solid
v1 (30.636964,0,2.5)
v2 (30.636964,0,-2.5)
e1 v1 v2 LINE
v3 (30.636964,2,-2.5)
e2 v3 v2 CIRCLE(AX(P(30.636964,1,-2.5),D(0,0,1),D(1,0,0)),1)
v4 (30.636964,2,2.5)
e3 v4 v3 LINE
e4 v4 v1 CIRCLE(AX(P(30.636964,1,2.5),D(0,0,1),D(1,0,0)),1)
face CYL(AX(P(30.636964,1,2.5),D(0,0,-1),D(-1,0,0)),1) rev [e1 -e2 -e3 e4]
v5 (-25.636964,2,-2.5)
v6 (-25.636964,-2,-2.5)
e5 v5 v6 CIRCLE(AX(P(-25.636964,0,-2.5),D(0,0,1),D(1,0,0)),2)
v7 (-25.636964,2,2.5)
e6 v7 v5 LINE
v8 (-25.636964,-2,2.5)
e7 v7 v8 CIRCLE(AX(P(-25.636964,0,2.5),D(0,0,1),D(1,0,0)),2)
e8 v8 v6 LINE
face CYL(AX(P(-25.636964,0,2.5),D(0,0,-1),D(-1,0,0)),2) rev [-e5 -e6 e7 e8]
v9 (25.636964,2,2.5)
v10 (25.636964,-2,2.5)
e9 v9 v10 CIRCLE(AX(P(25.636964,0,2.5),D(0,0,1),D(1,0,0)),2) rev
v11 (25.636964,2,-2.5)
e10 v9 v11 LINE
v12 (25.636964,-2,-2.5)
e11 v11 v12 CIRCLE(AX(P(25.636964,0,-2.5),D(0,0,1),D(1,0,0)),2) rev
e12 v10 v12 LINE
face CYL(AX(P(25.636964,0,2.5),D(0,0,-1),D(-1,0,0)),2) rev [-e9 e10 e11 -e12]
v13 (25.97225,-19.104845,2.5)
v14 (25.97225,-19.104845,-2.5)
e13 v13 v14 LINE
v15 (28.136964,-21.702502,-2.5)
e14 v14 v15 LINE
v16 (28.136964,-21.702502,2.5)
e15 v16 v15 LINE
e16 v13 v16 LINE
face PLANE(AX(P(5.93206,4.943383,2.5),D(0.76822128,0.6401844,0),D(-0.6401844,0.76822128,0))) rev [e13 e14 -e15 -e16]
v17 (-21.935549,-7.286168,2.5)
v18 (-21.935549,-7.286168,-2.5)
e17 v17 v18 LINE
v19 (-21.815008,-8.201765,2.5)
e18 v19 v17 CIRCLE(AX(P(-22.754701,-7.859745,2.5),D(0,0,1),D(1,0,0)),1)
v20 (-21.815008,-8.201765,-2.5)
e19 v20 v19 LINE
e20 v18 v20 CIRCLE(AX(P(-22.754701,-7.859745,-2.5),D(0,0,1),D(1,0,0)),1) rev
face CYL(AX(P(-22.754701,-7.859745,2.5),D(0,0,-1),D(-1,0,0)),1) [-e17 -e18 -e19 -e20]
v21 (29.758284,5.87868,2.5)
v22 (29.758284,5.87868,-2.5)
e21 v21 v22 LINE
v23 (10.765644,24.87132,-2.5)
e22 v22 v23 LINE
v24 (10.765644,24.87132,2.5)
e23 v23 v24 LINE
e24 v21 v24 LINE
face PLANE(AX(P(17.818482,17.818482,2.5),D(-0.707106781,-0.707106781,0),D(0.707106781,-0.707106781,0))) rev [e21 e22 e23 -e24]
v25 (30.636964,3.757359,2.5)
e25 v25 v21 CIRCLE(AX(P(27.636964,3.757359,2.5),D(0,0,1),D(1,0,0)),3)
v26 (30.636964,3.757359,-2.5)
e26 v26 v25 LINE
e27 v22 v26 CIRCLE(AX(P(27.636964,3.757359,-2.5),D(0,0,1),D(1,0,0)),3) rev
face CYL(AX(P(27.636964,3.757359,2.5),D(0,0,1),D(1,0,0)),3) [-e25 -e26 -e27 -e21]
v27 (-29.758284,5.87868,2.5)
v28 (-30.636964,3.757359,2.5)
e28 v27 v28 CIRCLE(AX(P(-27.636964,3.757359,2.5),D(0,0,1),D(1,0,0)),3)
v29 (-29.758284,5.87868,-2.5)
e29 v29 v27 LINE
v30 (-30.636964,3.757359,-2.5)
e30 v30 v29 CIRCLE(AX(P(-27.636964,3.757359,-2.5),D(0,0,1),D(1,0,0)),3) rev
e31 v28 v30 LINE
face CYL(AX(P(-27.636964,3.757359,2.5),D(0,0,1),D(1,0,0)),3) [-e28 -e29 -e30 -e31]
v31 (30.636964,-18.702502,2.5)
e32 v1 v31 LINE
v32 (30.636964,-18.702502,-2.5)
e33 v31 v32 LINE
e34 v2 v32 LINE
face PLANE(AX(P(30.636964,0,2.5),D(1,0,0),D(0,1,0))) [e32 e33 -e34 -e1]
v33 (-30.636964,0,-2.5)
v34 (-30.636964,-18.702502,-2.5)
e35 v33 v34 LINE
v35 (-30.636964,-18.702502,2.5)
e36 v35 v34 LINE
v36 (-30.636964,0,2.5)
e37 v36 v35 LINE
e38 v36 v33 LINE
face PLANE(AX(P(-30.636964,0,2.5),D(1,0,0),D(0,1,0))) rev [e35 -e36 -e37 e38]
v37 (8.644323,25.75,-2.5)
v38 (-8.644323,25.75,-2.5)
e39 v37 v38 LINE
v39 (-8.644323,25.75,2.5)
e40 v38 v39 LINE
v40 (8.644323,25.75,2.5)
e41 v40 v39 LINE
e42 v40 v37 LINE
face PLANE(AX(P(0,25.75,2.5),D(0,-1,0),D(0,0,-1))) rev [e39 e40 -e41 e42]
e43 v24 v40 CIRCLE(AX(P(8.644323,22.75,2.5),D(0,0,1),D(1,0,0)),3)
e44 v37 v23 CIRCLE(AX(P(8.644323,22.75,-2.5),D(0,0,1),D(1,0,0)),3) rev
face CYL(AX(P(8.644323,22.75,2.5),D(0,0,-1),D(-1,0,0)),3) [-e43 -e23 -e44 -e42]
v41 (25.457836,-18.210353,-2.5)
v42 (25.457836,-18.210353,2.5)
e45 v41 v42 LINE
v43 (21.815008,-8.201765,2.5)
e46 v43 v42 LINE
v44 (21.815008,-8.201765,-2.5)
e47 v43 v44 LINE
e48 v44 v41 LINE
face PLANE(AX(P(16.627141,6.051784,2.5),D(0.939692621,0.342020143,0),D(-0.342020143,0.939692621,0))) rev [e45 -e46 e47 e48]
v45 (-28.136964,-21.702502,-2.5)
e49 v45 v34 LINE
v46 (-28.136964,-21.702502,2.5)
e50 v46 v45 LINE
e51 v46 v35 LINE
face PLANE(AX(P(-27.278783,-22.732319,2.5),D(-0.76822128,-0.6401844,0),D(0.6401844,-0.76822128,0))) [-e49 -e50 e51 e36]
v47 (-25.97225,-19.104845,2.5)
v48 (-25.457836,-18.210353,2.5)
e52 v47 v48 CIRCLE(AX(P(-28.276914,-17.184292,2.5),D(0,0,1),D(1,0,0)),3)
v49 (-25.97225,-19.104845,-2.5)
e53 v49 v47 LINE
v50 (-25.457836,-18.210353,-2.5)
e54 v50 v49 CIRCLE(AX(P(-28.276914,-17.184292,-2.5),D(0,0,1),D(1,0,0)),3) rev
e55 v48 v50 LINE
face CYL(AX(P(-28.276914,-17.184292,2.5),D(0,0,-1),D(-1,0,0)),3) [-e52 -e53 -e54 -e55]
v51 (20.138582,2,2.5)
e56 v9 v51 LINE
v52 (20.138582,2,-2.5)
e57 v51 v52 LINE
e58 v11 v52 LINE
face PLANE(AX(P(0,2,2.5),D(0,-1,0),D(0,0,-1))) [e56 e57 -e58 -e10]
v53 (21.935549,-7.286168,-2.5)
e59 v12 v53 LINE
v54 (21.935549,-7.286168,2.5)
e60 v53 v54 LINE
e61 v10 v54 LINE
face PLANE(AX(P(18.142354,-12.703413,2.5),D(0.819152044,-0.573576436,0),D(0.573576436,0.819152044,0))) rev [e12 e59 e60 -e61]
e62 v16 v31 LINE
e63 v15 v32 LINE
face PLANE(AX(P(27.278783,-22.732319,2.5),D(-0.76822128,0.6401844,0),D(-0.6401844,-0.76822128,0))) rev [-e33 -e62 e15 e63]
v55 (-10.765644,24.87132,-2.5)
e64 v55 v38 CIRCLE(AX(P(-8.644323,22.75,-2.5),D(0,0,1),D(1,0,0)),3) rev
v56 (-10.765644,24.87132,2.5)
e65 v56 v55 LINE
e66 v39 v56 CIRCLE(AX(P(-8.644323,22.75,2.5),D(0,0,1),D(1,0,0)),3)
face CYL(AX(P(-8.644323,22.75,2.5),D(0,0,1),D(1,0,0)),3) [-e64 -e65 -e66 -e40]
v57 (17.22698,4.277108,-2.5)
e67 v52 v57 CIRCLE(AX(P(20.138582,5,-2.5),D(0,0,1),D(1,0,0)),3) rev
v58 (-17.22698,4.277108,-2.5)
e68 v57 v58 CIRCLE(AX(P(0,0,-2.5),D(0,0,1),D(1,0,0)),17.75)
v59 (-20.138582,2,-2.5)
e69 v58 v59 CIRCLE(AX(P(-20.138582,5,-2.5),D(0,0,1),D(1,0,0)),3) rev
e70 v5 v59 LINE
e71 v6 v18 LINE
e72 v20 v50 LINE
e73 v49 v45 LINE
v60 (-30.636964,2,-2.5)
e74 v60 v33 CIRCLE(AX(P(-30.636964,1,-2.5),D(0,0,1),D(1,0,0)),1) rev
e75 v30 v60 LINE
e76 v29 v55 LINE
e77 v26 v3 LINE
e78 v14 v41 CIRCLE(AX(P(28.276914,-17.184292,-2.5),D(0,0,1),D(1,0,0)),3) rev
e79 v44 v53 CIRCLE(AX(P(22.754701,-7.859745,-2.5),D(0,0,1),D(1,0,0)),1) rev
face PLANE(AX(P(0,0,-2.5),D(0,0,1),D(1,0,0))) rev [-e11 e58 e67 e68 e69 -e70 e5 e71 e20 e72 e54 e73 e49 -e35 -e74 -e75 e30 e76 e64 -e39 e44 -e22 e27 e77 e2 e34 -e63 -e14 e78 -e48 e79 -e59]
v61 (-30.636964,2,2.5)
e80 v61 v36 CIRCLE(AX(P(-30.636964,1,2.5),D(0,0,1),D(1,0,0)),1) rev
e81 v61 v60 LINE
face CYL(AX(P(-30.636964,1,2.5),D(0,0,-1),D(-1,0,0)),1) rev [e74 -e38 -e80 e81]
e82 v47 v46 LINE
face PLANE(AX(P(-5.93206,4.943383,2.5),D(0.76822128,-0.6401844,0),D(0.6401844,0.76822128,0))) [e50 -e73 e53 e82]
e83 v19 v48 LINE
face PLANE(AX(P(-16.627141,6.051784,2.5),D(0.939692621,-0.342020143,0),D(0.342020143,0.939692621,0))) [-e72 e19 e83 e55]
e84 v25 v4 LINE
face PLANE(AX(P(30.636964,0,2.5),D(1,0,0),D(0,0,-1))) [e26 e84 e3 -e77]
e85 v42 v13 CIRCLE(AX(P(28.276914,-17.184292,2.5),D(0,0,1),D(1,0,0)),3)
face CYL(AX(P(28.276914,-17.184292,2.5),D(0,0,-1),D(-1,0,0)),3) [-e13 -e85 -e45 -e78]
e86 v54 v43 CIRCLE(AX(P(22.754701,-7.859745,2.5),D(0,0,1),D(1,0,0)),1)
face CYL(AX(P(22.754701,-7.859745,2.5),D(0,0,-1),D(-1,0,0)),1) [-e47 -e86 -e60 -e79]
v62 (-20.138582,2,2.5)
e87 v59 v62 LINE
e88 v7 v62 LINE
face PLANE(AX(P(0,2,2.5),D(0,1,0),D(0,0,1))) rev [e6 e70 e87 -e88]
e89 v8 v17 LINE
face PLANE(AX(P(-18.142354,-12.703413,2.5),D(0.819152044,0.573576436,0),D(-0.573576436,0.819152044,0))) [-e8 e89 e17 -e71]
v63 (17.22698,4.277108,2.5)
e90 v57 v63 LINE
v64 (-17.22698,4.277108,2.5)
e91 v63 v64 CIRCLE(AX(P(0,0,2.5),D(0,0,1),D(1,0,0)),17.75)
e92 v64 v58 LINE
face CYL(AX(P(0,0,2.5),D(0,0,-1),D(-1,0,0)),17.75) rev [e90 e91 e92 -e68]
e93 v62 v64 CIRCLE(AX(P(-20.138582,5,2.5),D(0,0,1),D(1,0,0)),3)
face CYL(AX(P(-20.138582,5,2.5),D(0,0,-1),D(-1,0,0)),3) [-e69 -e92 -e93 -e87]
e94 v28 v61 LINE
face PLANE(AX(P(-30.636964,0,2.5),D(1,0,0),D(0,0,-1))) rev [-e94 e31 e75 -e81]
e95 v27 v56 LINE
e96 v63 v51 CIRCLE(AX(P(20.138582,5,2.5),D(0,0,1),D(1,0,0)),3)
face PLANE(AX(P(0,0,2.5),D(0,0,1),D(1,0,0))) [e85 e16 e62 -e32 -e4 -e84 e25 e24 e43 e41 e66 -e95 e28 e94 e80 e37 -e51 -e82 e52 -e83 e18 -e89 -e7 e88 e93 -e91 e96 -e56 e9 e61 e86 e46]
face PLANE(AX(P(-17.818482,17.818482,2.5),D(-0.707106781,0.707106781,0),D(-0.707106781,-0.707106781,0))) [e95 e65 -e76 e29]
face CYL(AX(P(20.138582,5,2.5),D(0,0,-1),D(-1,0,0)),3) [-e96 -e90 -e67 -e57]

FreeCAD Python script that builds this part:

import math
import FreeCAD as App
import Part
import Sketcher
from FreeCAD import Vector
Q = App.Units.Quantity


def edges_at(feature, points):
    """Names of the edges that pass closest to the given points."""
    edges = feature.Shape.Edges
    near = lambda p: min(range(len(edges)), key=lambda i: edges[i].distToShape(Part.Vertex(*p))[0])
    return sorted({f"Edge{near(p) + 1}" for p in points})

doc = App.newDocument("Part")
params = doc.addObject("Spreadsheet::Sheet", "Params")
for row, (alias, value) in enumerate([
    ("sketch1_radius", "2 mm"),
    ("sketch1_width", "8 mm"),
    ("sketch1_height", "3 mm"),
    ("sketch1_radius2", "17.75 mm"),
    ("pad1_length", "5 mm"),
    ("fillet_radius", "3 mm"),
    ("fillet2_radius", "1 mm"),
], start=1):
    params.set(f"A{row}", alias)
    params.set(f"B{row}", "=" + value)
    params.setAlias(f"B{row}", alias)

body = doc.addObject("PartDesign::Body", "Body")

sketch1 = doc.addObject("Sketcher::SketchObject", "Sketch")
body.addObject(sketch1)
sketch1.AttachmentSupport = (doc.XY_Plane, [""])
sketch1.MapMode = "FlatFace"
sketch1.addGeometry(Part.LineSegment(Vector(17.6, 2, 0), Vector(25.6, 2, 0)), False)
sketch1.addGeometry(Part.ArcOfCircle(Part.Circle(Vector(25.6, 0, 0), Vector(0, 0, 1), 2), math.radians(-90), math.radians(90)), False)
sketch1.addGeometry(Part.LineSegment(Vector(25.6, -2, 0), Vector(21.6, -7.7, 0)), False)
sketch1.addGeometry(Part.LineSegment(Vector(21.6, -7.7, 0), Vector(25.6, -18.7, 0)), False)
sketch1.addGeometry(Part.LineSegment(Vector(25.6, -18.7, 0), Vector(28.1, -21.7, 0)), False)
sketch1.addGeometry(Part.LineSegment(Vector(28.1, -21.7, 0), Vector(30.6, -18.7, 0)), False)
sketch1.addGeometry(Part.LineSegment(Vector(30.6, -18.7, 0), Vector(30.6, 0, 0)), False)
sketch1.addGeometry(Part.ArcOfCircle(Part.Circle(Vector(30.6, 1, 0), Vector(0, 0, 1), 1), math.radians(90), math.radians(270)), False)
sketch1.addGeometry(Part.LineSegment(Vector(30.6, 2, 0), Vector(30.6, 5, 0)), False)
sketch1.addGeometry(Part.LineSegment(Vector(30.6, 5, 0), Vector(9.9, 25.8, 0)), False)
sketch1.addGeometry(Part.LineSegment(Vector(9.9, 25.8, 0), Vector(-9.9, 25.8, 0)), False)
sketch1.addGeometry(Part.LineSegment(Vector(-9.9, 25.8, 0), Vector(-30.6, 5, 0)), False)
sketch1.addGeometry(Part.LineSegment(Vector(-30.6, 5, 0), Vector(-30.6, 2, 0)), False)
sketch1.addGeometry(Part.ArcOfCircle(Part.Circle(Vector(-30.6, 1, 0), Vector(0, 0, 1), 1), math.radians(-90), math.radians(90)), False)
sketch1.addGeometry(Part.LineSegment(Vector(-30.6, 0, 0), Vector(-30.6, -18.7, 0)), False)
sketch1.addGeometry(Part.LineSegment(Vector(-30.6, -18.7, 0), Vector(-28.1, -21.7, 0)), False)
sketch1.addGeometry(Part.LineSegment(Vector(-28.1, -21.7, 0), Vector(-25.6, -18.7, 0)), False)
sketch1.addGeometry(Part.LineSegment(Vector(-25.6, -18.7, 0), Vector(-21.6, -7.7, 0)), False)
sketch1.addGeometry(Part.LineSegment(Vector(-21.6, -7.7, 0), Vector(-25.6, -2, 0)), False)
sketch1.addGeometry(Part.ArcOfCircle(Part.Circle(Vector(-25.6, 0, 0), Vector(0, 0, 1), 2), math.radians(90), math.radians(270)), False)
sketch1.addGeometry(Part.LineSegment(Vector(-25.6, 2, 0), Vector(-17.6, 2, 0)), False)
sketch1.addGeometry(Part.ArcOfCircle(Part.Circle(Vector(0, 0, 0), Vector(0, 0, 1), 17.7), math.radians(6), math.radians(174)), False)
sketch1.addConstraint(Sketcher.Constraint("Tangent", 0, 2, 1, 2))
sketch1.addConstraint(Sketcher.Constraint("Coincident", 1, 1, 2, 1))
sketch1.addConstraint(Sketcher.Constraint("Coincident", 2, 2, 3, 1))
sketch1.addConstraint(Sketcher.Constraint("Coincident", 3, 2, 4, 1))
sketch1.addConstraint(Sketcher.Constraint("Coincident", 4, 2, 5, 1))
sketch1.addConstraint(Sketcher.Constraint("Coincident", 5, 2, 6, 1))
sketch1.addConstraint(Sketcher.Constraint("Coincident", 6, 2, 7, 2))
sketch1.addConstraint(Sketcher.Constraint("Coincident", 7, 1, 8, 1))
sketch1.addConstraint(Sketcher.Constraint("Coincident", 8, 2, 9, 1))
sketch1.addConstraint(Sketcher.Constraint("Coincident", 9, 2, 10, 1))
sketch1.addConstraint(Sketcher.Constraint("Coincident", 10, 2, 11, 1))
sketch1.addConstraint(Sketcher.Constraint("Coincident", 11, 2, 12, 1))
sketch1.addConstraint(Sketcher.Constraint("Coincident", 12, 2, 13, 2))
sketch1.addConstraint(Sketcher.Constraint("Coincident", 13, 1, 14, 1))
sketch1.addConstraint(Sketcher.Constraint("Coincident", 14, 2, 15, 1))
sketch1.addConstraint(Sketcher.Constraint("Coincident", 15, 2, 16, 1))
sketch1.addConstraint(Sketcher.Constraint("Coincident", 16, 2, 17, 1))
sketch1.addConstraint(Sketcher.Constraint("Coincident", 17, 2, 18, 1))
sketch1.addConstraint(Sketcher.Constraint("Coincident", 18, 2, 19, 2))
sketch1.addConstraint(Sketcher.Constraint("Tangent", 19, 1, 20, 1))
sketch1.addConstraint(Sketcher.Constraint("Coincident", 20, 2, 21, 2))
sketch1.addConstraint(Sketcher.Constraint("Coincident", 21, 1, 0, 1))
sketch1.addConstraint(Sketcher.Constraint("Horizontal", 0))
sketch1.addConstraint(Sketcher.Constraint("Vertical", 6))
sketch1.addConstraint(Sketcher.Constraint("Vertical", 8))
sketch1.addConstraint(Sketcher.Constraint("Horizontal", 10))
sketch1.addConstraint(Sketcher.Constraint("Vertical", 12))
sketch1.addConstraint(Sketcher.Constraint("Vertical", 14))
sketch1.addConstraint(Sketcher.Constraint("Horizontal", 20))
sketch1.addConstraint(Sketcher.Constraint("Coincident", 21, 3, -1, 1))
sketch1.addConstraint(Sketcher.Constraint("Equal", 7, 13))
sketch1.addConstraint(Sketcher.Constraint("Equal", 1, 19))
sketch1.addConstraint(Sketcher.Constraint("Symmetric", 1, 3, 19, 3, -1, 1))
sketch1.addConstraint(Sketcher.Constraint("Symmetric", 6, 2, 13, 1, -1, 1))
sketch1.addConstraint(Sketcher.Constraint("Symmetric", 7, 3, 13, 3, -2))
sketch1.addConstraint(Sketcher.Constraint("Symmetric", 8, 2, 11, 2, -2))
sketch1.addConstraint(Sketcher.Constraint("Symmetric", 4, 2, 15, 2, -2))
sketch1.addConstraint(Sketcher.Constraint("Symmetric", 3, 2, 16, 2, -2))
sketch1.addConstraint(Sketcher.Constraint("Symmetric", 2, 2, 17, 2, -2))
sketch1.addConstraint(Sketcher.Constraint("Symmetric", 1, 1, 18, 2, -2))
sketch1.addConstraint(Sketcher.Constraint("Perpendicular", 9, 11))
sketch1.addConstraint(Sketcher.Constraint("Parallel", 4, 15))
sketch1.addConstraint(Sketcher.Constraint("Parallel", 5, 16))
sketch1.addConstraint(Sketcher.Constraint("Horizontal", 3, 2, 5, 2))
sketch1.addConstraint(Sketcher.Constraint("Horizontal", 0, 2, 7, 1))
sketch1.addConstraint(Sketcher.Constraint("Vertical", 0, 2, 1, 1))
sketch1.addConstraint(Sketcher.Constraint("Vertical", 1, 1, 3, 2))
sketch1.addConstraint(Sketcher.Constraint("Vertical", 7, 3, 5, 2))
sketch1.addConstraint(Sketcher.Constraint("Vertical", 6, 2, 7, 1))
sketch1.addConstraint(Sketcher.Constraint("Equal", 9, 11))
sketch1.addConstraint(Sketcher.Constraint("Radius", 1, 2.0))
sketch1.addConstraint(Sketcher.Constraint("DistanceX", 0, 1, 0, 2, 8.0))
sketch1.addConstraint(Sketcher.Constraint("DistanceY", 8, 1, 8, 2, 3.0))
sketch1.addConstraint(Sketcher.Constraint("Angle", 2, Q("-125 deg")))
sketch1.addConstraint(Sketcher.Constraint("Angle", 3, Q("-70 deg")))
sketch1.addConstraint(Sketcher.Constraint("Radius", 21, 17.75))
sketch1.addConstraint(Sketcher.Constraint("DistanceX", 1, 3, 7, 3, 5.0))
sketch1.addConstraint(Sketcher.Constraint("DistanceX", 2, 2, 1, 1, 4.0))
sketch1.addConstraint(Sketcher.Constraint("DistanceY", 4, 2, 3, 2, 3.0))
sketch1.addConstraint(Sketcher.Constraint("DistanceY", -1, 1, 9, 2, 25.75))
sketch1.setExpression("Constraints[50]", "Params.sketch1_radius")
sketch1.setExpression("Constraints[51]", "Params.sketch1_width")
sketch1.setExpression("Constraints[52]", "Params.sketch1_height")
sketch1.setExpression("Constraints[55]", "Params.sketch1_radius2")
pad1 = doc.addObject("PartDesign::Pad", "Pad")
body.addObject(pad1)
pad1.Profile = sketch1
pad1.setExpression("Length", "Params.pad1_length")
pad1.Midplane = True
doc.recompute()

fillet = doc.addObject("PartDesign::Fillet", "Fillet")
body.addObject(fillet)
fillet.Base = (pad1, edges_at(pad1, [
    (-25.637, -18.703, 0),
    (-30.637, 5, 0),
    (-9.887, 25.75, 0),
    (9.887, 25.75, 0),
    (30.637, 5, 0),
    (25.637, -18.703, 0),
    (17.637, 2, 0),
    (-17.637, 2, 0),
]))
fillet.setExpression("Radius", "Params.fillet_radius")
doc.recompute()

fillet2 = doc.addObject("PartDesign::Fillet", "Fillet001")
body.addObject(fillet2)
fillet2.Base = (fillet, edges_at(fillet, [(-21.637, -7.713, 0), (21.637, -7.713, 0)]))
fillet2.setExpression("Radius", "Params.fillet2_radius")

doc.recompute()
